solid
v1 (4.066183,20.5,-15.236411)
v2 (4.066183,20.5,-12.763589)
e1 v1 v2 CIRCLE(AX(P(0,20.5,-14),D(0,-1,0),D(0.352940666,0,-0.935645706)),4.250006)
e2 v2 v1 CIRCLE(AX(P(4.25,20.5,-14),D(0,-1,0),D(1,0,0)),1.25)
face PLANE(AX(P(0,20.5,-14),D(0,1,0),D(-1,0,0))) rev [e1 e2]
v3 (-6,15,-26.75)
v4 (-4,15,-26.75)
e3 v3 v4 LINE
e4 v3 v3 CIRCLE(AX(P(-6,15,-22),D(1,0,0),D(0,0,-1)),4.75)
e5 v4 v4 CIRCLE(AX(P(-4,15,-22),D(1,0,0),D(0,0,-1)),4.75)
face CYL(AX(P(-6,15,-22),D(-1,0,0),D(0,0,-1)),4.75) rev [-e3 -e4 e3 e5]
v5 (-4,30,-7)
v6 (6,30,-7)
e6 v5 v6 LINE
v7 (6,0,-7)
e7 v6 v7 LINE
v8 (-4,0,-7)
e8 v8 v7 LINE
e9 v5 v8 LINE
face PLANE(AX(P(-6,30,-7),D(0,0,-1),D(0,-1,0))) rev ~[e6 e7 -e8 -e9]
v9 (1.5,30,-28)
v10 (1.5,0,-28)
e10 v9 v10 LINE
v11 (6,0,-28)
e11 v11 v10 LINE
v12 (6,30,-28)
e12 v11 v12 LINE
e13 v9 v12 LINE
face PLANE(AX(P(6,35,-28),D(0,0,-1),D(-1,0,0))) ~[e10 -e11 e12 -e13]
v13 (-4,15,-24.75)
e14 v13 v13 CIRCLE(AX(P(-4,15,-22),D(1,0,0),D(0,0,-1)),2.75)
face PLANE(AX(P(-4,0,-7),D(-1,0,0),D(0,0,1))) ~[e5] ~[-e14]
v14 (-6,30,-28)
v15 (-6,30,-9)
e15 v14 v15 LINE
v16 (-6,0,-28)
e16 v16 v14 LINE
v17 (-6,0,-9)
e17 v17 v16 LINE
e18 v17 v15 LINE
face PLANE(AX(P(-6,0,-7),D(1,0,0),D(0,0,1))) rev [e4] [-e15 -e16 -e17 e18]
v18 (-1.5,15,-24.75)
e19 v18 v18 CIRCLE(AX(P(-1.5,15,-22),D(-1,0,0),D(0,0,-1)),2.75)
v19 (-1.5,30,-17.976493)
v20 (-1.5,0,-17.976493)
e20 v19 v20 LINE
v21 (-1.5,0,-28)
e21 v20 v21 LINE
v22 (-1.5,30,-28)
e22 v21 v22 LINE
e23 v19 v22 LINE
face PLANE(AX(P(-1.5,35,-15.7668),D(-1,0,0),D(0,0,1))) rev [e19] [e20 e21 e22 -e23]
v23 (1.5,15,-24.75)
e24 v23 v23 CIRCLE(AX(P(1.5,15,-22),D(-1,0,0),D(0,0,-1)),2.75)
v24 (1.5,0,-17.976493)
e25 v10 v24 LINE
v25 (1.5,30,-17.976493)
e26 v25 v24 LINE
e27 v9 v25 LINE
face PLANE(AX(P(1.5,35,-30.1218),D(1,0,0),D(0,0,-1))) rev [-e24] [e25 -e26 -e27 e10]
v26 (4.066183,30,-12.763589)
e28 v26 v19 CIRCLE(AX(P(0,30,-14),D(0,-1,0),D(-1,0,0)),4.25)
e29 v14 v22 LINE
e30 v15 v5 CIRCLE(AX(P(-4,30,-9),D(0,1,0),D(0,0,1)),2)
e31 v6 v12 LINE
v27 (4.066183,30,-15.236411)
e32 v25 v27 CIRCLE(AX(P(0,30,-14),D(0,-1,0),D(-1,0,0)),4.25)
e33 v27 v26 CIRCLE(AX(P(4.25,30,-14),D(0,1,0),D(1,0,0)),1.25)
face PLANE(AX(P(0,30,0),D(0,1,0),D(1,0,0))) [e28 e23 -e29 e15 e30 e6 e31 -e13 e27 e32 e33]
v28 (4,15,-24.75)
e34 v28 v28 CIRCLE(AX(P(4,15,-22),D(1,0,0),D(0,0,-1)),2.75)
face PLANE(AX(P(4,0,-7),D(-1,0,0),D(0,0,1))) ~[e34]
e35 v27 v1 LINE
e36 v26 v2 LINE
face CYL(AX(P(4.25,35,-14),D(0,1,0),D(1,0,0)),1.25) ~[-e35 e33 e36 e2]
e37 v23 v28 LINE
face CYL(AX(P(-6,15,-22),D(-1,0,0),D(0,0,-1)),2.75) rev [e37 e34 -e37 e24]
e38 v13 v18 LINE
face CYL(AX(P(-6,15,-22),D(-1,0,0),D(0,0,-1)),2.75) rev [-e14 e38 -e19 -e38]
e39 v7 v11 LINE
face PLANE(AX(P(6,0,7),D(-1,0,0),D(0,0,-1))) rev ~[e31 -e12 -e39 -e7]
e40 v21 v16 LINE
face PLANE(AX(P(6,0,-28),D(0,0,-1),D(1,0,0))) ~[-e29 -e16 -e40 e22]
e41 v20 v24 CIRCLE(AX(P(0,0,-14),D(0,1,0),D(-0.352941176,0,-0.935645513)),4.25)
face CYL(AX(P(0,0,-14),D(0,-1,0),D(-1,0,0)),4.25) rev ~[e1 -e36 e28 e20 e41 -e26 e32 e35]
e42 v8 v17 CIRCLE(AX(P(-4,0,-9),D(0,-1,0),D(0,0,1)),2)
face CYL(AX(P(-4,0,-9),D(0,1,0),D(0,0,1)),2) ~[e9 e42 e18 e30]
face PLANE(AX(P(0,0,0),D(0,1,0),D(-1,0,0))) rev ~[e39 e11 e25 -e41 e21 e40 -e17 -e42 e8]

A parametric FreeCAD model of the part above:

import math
import FreeCAD as App
import Part
import Sketcher

V = App.Vector
Q = App.Units.Quantity


def edges_at(feature, points):
    """Names of the edges that pass closest to the given points."""
    edges = feature.Shape.Edges
    near = lambda p: min(range(len(edges)), key=lambda i: edges[i].distToShape(Part.Vertex(*p))[0])
    return sorted({f"Edge{near(p) + 1}" for p in points})

doc = App.newDocument("Part")
body = doc.addObject("PartDesign::Body", "Body")

sketch1 = body.newObject("Sketcher::SketchObject", "Sketch")
sketch1.AttachmentSupport = (doc.getObject("XZ_Plane"), [""])
sketch1.MapMode = "FlatFace"
sketch1.addGeometry([
    Part.LineSegment(V(-6, -7, 0), V(-6, 14, 0)),
    Part.LineSegment(V(-6, 14, 0), V(6, 14, 0)),
    Part.LineSegment(V(6, 14, 0), V(6, -7, 0)),
    Part.LineSegment(V(6, -7, 0), V(-6, -7, 0)),
    Part.Circle(V(0, 0, 0), V(0, 0, 1), 4.2),
], False)
sketch1.addConstraint([
    Sketcher.Constraint("Coincident", 0, 2, 1, 1),
    Sketcher.Constraint("Coincident", 1, 2, 2, 1),
    Sketcher.Constraint("Coincident", 2, 2, 3, 1),
    Sketcher.Constraint("Coincident", 3, 2, 0, 1),
    Sketcher.Constraint("Vertical", 0),
    Sketcher.Constraint("Horizontal", 1),
    Sketcher.Constraint("Vertical", 2),
    Sketcher.Constraint("Horizontal", 3),
    Sketcher.Constraint("Coincident", 4, 3, -1, 1),
    Sketcher.Constraint("Diameter", 4, Q("8.5 mm")),
    Sketcher.Constraint("DistanceX", 1, 1, 1, 2, Q("12 mm")),
    Sketcher.Constraint("DistanceX", 0, 2, -1, 1, Q("6 mm")),
    Sketcher.Constraint("DistanceY", -1, 1, 0, 2, Q("14 mm")),
    Sketcher.Constraint("DistanceY", 2, 2, -1, 1, Q("7 mm")),
])
pad1 = body.newObject("PartDesign::Pad", "Pad")
pad1.Profile = sketch1
pad1.Length = 35
pad1.Reversed = True

sketch2 = body.newObject("Sketcher::SketchObject", "Sketch001")
sketch2.AttachmentSupport = (doc.getObject("XZ_Plane"), [""])
sketch2.MapMode = "FlatFace"
sketch2.AttachmentOffset = App.Placement(V(0, 0, -35), App.Rotation())
sketch2.addGeometry([
    Part.LineSegment(V(-1.5, 1.8, 0), V(-1.5, 16.1, 0)),
    Part.LineSegment(V(-1.5, 16.1, 0), V(1.5, 16.1, 0)),
    Part.LineSegment(V(1.5, 16.1, 0), V(1.5, 1.8, 0)),
    Part.LineSegment(V(1.5, 1.8, 0), V(-1.5, 1.8, 0)),
], False)
sketch2.addConstraint([
    Sketcher.Constraint("Coincident", 0, 2, 1, 1),
    Sketcher.Constraint("Coincident", 1, 2, 2, 1),
    Sketcher.Constraint("Coincident", 2, 2, 3, 1),
    Sketcher.Constraint("Coincident", 3, 2, 0, 1),
    Sketcher.Constraint("Vertical", 0),
    Sketcher.Constraint("Horizontal", 1),
    Sketcher.Constraint("Vertical", 2),
    Sketcher.Constraint("Horizontal", 3),
    Sketcher.Constraint("DistanceX", 0, 2, -1, 1, Q("1.5 mm")),
    Sketcher.Constraint("DistanceX", -1, 1, 1, 2, Q("1.5 mm")),
    Sketcher.Constraint("DistanceY", 0, 1, 0, 2, Q("14.355 mm")),
    Sketcher.Constraint("DistanceY", -1, 1, 0, 2, Q("16.1218 mm")),
])
pocket1 = body.newObject("PartDesign::Pocket", "Pocket")
pocket1.Profile = sketch2
pocket1.Type = "ThroughAll"
pocket1.Reversed = True

sketch3 = body.newObject("Sketcher::SketchObject", "Sketch002")
sketch3.AttachmentSupport = (doc.getObject("YZ_Plane"), [""])
sketch3.MapMode = "FlatFace"
sketch3.AttachmentOffset = App.Placement(V(0, 0, -6), App.Rotation())
sketch3.addGeometry(Part.Circle(V(15, 8, 0), V(0, 0, 1), 2.8), False)
sketch3.addConstraint([
    Sketcher.Constraint("Diameter", 0, Q("5.5 mm")),
    Sketcher.Constraint("DistanceX", -1, 1, 0, 3, Q("15 mm")),
    Sketcher.Constraint("DistanceY", -1, 1, 0, 3, Q("8 mm")),
])
pocket2 = body.newObject("PartDesign::Pocket", "Pocket001")
pocket2.Profile = sketch3
pocket2.Length = 10
pocket2.Reversed = True

sketch4 = body.newObject("Sketcher::SketchObject", "Sketch003")
sketch4.AttachmentSupport = (doc.getObject("XZ_Plane"), [""])
sketch4.MapMode = "FlatFace"
sketch4.AttachmentOffset = App.Placement(V(0, 0, -35), App.Rotation())
sketch4.addGeometry([
    Part.ArcOfCircle(Part.Circle(V(4.2, 0, 0), V(0, 0, 1), 1.2), math.radians(98), math.radians(262)),
    Part.ArcOfCircle(Part.Circle(V(0, 0, 0), V(0, 0, 1), 4.3), math.radians(-17), math.radians(17)),
], False)
sketch4.addConstraint([
    Sketcher.Constraint("Coincident", 0, 1, 1, 2),
    Sketcher.Constraint("Coincident", 1, 1, 0, 2),
    Sketcher.Constraint("Coincident", 1, 3, -1, 1),
    Sketcher.Constraint("PointOnObject", 0, 3, -1),
    Sketcher.Constraint("Radius", 0, Q("1.25 mm")),
    Sketcher.Constraint("Radius", 1, Q("4.25 mm")),
    Sketcher.Constraint("DistanceX", -1, 1, 0, 3, Q("4.25 mm")),
])
pad2 = body.newObject("PartDesign::Pad", "Pad001")
pad2.Profile = sketch4
pad2.Length = 14.5

sketch5 = body.newObject("Sketcher::SketchObject", "Sketch004")
sketch5.AttachmentSupport = (doc.getObject("XZ_Plane"), [""])
sketch5.MapMode = "FlatFace"
sketch5.AttachmentOffset = App.Placement(V(0, 0, -35), App.Rotation())
sketch5.addGeometry([
    Part.LineSegment(V(6, -7, 0), V(6, 14, 0)),
    Part.LineSegment(V(6, 14, 0), V(36, 14, 0)),
    Part.LineSegment(V(36, 14, 0), V(36, -7, 0)),
    Part.LineSegment(V(36, -7, 0), V(6, -7, 0)),
    Part.Circle(V(21, 3.5, 0), V(0, 0, 1), 2.8),
], False)
sketch5.addConstraint([
    Sketcher.Constraint("Coincident", 0, 2, 1, 1),
    Sketcher.Constraint("Coincident", 1, 2, 2, 1),
    Sketcher.Constraint("Coincident", 2, 2, 3, 1),
    Sketcher.Constraint("Coincident", 3, 2, 0, 1),
    Sketcher.Constraint("Vertical", 0),
    Sketcher.Constraint("Horizontal", 1),
    Sketcher.Constraint("Vertical", 2),
    Sketcher.Constraint("Horizontal", 3),
    Sketcher.Constraint("Diameter", 4, Q("5.5 mm")),
    Sketcher.Constraint("DistanceX", 1, 1, 1, 2, Q("30 mm")),
    Sketcher.Constraint("DistanceX", 0, 2, 4, 3, Q("15 mm")),
    Sketcher.Constraint("DistanceY", 4, 3, 0, 2, Q("10.5 mm")),
    Sketcher.Constraint("DistanceY", 2, 2, 4, 3, Q("10.5 mm")),
    Sketcher.Constraint("DistanceX", -1, 1, 4, 3, Q("21 mm")),
    Sketcher.Constraint("DistanceY", -1, 1, 0, 2, Q("14 mm")),
])
pad3 = body.newObject("PartDesign::Pad", "Pad002")
pad3.Profile = sketch5
pad3.Length = 5

sketch6 = body.newObject("Sketcher::SketchObject", "Sketch005")
sketch6.AttachmentSupport = (doc.getObject("XZ_Plane"), [""])
sketch6.MapMode = "FlatFace"
sketch6.AttachmentOffset = App.Placement(V(0, 0, -35), App.Rotation())
sketch6.addGeometry([
    Part.Circle(V(21, 3.5, 0), V(0, 0, 1), 4.8),
    Part.Circle(V(21, 3.5, 0), V(0, 0, 1), 2.8),
], False)
sketch6.addConstraint([
    Sketcher.Constraint("Coincident", 1, 3, 0, 3),
    Sketcher.Constraint("Diameter", 0, Q("9.5 mm")),
    Sketcher.Constraint("Diameter", 1, Q("5.5 mm")),
    Sketcher.Constraint("DistanceX", -1, 1, 0, 3, Q("21 mm")),
    Sketcher.Constraint("DistanceY", -1, 1, 0, 3, Q("3.5 mm")),
])
pocket3 = body.newObject("PartDesign::Pocket", "Pocket002")
pocket3.Profile = sketch6
pocket3.Length = 2
pocket3.Reversed = True

sketch7 = body.newObject("Sketcher::SketchObject", "Sketch006")
sketch7.AttachmentSupport = (doc.getObject("YZ_Plane"), [""])
sketch7.MapMode = "FlatFace"
sketch7.AttachmentOffset = App.Placement(V(0, 0, -6), App.Rotation())
sketch7.addGeometry([
    Part.Circle(V(15, 8, 0), V(0, 0, 1), 4.8),
    Part.Circle(V(15, 8, 0), V(0, 0, 1), 2.8),
], False)
sketch7.addConstraint([
    Sketcher.Constraint("Coincident", 1, 3, 0, 3),
    Sketcher.Constraint("Diameter", 0, Q("9.5 mm")),
    Sketcher.Constraint("Diameter", 1, Q("5.5 mm")),
    Sketcher.Constraint("DistanceX", -1, 1, 0, 3, Q("15 mm")),
    Sketcher.Constraint("DistanceY", -1, 1, 0, 3, Q("8 mm")),
])
pocket4 = body.newObject("PartDesign::Pocket", "Pocket003")
pocket4.Profile = sketch7
pocket4.Length = 2
pocket4.Reversed = True
doc.recompute()

fillet = body.newObject("PartDesign::Fillet", "Fillet")
fillet.Base = (pocket4, edges_at(pocket4, [(-6, 17.5, -7), (36, 32.5, -7), (36, 32.5, 14)]))
fillet.Radius = 2

sketch8 = body.newObject("Sketcher::SketchObject", "Sketch007")
sketch8.AttachmentSupport = (doc.getObject("XZ_Plane"), [""])
sketch8.MapMode = "FlatFace"
sketch8.AttachmentOffset = App.Placement(V(0, 0, -35), App.Rotation())
sketch8.addGeometry([
    Part.LineSegment(V(-22, -17, 0), V(-22, 29, 0)),
    Part.LineSegment(V(-22, 29, 0), V(42, 29, 0)),
    Part.LineSegment(V(42, 29, 0), V(42, -17, 0)),
    Part.LineSegment(V(42, -17, 0), V(-22, -17, 0)),
], False)
sketch8.addConstraint([
    Sketcher.Constraint("Coincident", 0, 2, 1, 1),
    Sketcher.Constraint("Coincident", 1, 2, 2, 1),
    Sketcher.Constraint("Coincident", 2, 2, 3, 1),
    Sketcher.Constraint("Coincident", 3, 2, 0, 1),
    Sketcher.Constraint("Vertical", 0),
    Sketcher.Constraint("Horizontal", 1),
    Sketcher.Constraint("Vertical", 2),
    Sketcher.Constraint("Horizontal", 3),
    Sketcher.Constraint("DistanceX", 1, 1, 1, 2, Q("63.3496 mm")),
    Sketcher.Constraint("DistanceY", 0, 1, 0, 2, Q("45.7233 mm")),
    Sketcher.Constraint("DistanceX", -1, 1, 1, 2, Q("41.844 mm")),
    Sketcher.Constraint("DistanceY", 2, 2, -1, 1, Q("16.572 mm")),
])
pocket5 = body.newObject("PartDesign::Pocket", "Pocket004")
pocket5.Profile = sketch8
pocket5.Length = 5
pocket5.Reversed = True
doc.recompute()

datumplane = body.newObject("PartDesign::Plane", "DatumPlane")
datumplane.AttachmentSupport = (doc.getObject("XY_Plane"), [""])
datumplane.MapMode = "FlatFace"
datumplane.AttachmentOffset = App.Placement(V(0, 0, -7), App.Rotation())
mirrored = body.newObject("PartDesign::Mirrored", "Mirrored")
mirrored.Originals = [pad1, pocket1, pocket2, pad2, pad3, pocket3, pocket4, fillet, pocket5]
mirrored.MirrorPlane = (datumplane, [""])
body.Tip = mirrored

sketch9 = body.newObject("Sketcher::SketchObject", "Sketch008")
sketch9.AttachmentSupport = (doc.getObject("YZ_Plane"), [""])
sketch9.MapMode = "FlatFace"
sketch9.AttachmentOffset = App.Placement(V(0, 0, -6), App.Rotation())
sketch9.addGeometry([
    Part.LineSegment(V(30, 21, 0), V(30, -7, 0)),
    Part.LineSegment(V(30, -7, 0), V(-9, -7, 0)),
    Part.LineSegment(V(-9, -7, 0), V(-9, 21, 0)),
    Part.LineSegment(V(-9, 21, 0), V(30, 21, 0)),
], False)
sketch9.addConstraint([
    Sketcher.Constraint("Coincident", 0, 2, 1, 1),
    Sketcher.Constraint("Coincident", 1, 2, 2, 1),
    Sketcher.Constraint("Coincident", 2, 2, 3, 1),
    Sketcher.Constraint("Coincident", 3, 2, 0, 1),
    Sketcher.Constraint("Vertical", 0),
    Sketcher.Constraint("Horizontal", 1),
    Sketcher.Constraint("Vertical", 2),
    Sketcher.Constraint("Horizontal", 3),
    Sketcher.Constraint("DistanceX", -1, 1, 0, 2, Q("30 mm")),
    Sketcher.Constraint("DistanceY", 0, 2, -1, 1, Q("7 mm")),
    Sketcher.Constraint("DistanceY", 0, 2, 0, 1, Q("28.294 mm")),
    Sketcher.Constraint("DistanceX", 1, 2, 1, 1, Q("38.8637 mm")),
])
pocket6 = body.newObject("PartDesign::Pocket", "Pocket005")
pocket6.Profile = sketch9
pocket6.Type = "ThroughAll"
pocket6.Reversed = True

doc.recompute()
